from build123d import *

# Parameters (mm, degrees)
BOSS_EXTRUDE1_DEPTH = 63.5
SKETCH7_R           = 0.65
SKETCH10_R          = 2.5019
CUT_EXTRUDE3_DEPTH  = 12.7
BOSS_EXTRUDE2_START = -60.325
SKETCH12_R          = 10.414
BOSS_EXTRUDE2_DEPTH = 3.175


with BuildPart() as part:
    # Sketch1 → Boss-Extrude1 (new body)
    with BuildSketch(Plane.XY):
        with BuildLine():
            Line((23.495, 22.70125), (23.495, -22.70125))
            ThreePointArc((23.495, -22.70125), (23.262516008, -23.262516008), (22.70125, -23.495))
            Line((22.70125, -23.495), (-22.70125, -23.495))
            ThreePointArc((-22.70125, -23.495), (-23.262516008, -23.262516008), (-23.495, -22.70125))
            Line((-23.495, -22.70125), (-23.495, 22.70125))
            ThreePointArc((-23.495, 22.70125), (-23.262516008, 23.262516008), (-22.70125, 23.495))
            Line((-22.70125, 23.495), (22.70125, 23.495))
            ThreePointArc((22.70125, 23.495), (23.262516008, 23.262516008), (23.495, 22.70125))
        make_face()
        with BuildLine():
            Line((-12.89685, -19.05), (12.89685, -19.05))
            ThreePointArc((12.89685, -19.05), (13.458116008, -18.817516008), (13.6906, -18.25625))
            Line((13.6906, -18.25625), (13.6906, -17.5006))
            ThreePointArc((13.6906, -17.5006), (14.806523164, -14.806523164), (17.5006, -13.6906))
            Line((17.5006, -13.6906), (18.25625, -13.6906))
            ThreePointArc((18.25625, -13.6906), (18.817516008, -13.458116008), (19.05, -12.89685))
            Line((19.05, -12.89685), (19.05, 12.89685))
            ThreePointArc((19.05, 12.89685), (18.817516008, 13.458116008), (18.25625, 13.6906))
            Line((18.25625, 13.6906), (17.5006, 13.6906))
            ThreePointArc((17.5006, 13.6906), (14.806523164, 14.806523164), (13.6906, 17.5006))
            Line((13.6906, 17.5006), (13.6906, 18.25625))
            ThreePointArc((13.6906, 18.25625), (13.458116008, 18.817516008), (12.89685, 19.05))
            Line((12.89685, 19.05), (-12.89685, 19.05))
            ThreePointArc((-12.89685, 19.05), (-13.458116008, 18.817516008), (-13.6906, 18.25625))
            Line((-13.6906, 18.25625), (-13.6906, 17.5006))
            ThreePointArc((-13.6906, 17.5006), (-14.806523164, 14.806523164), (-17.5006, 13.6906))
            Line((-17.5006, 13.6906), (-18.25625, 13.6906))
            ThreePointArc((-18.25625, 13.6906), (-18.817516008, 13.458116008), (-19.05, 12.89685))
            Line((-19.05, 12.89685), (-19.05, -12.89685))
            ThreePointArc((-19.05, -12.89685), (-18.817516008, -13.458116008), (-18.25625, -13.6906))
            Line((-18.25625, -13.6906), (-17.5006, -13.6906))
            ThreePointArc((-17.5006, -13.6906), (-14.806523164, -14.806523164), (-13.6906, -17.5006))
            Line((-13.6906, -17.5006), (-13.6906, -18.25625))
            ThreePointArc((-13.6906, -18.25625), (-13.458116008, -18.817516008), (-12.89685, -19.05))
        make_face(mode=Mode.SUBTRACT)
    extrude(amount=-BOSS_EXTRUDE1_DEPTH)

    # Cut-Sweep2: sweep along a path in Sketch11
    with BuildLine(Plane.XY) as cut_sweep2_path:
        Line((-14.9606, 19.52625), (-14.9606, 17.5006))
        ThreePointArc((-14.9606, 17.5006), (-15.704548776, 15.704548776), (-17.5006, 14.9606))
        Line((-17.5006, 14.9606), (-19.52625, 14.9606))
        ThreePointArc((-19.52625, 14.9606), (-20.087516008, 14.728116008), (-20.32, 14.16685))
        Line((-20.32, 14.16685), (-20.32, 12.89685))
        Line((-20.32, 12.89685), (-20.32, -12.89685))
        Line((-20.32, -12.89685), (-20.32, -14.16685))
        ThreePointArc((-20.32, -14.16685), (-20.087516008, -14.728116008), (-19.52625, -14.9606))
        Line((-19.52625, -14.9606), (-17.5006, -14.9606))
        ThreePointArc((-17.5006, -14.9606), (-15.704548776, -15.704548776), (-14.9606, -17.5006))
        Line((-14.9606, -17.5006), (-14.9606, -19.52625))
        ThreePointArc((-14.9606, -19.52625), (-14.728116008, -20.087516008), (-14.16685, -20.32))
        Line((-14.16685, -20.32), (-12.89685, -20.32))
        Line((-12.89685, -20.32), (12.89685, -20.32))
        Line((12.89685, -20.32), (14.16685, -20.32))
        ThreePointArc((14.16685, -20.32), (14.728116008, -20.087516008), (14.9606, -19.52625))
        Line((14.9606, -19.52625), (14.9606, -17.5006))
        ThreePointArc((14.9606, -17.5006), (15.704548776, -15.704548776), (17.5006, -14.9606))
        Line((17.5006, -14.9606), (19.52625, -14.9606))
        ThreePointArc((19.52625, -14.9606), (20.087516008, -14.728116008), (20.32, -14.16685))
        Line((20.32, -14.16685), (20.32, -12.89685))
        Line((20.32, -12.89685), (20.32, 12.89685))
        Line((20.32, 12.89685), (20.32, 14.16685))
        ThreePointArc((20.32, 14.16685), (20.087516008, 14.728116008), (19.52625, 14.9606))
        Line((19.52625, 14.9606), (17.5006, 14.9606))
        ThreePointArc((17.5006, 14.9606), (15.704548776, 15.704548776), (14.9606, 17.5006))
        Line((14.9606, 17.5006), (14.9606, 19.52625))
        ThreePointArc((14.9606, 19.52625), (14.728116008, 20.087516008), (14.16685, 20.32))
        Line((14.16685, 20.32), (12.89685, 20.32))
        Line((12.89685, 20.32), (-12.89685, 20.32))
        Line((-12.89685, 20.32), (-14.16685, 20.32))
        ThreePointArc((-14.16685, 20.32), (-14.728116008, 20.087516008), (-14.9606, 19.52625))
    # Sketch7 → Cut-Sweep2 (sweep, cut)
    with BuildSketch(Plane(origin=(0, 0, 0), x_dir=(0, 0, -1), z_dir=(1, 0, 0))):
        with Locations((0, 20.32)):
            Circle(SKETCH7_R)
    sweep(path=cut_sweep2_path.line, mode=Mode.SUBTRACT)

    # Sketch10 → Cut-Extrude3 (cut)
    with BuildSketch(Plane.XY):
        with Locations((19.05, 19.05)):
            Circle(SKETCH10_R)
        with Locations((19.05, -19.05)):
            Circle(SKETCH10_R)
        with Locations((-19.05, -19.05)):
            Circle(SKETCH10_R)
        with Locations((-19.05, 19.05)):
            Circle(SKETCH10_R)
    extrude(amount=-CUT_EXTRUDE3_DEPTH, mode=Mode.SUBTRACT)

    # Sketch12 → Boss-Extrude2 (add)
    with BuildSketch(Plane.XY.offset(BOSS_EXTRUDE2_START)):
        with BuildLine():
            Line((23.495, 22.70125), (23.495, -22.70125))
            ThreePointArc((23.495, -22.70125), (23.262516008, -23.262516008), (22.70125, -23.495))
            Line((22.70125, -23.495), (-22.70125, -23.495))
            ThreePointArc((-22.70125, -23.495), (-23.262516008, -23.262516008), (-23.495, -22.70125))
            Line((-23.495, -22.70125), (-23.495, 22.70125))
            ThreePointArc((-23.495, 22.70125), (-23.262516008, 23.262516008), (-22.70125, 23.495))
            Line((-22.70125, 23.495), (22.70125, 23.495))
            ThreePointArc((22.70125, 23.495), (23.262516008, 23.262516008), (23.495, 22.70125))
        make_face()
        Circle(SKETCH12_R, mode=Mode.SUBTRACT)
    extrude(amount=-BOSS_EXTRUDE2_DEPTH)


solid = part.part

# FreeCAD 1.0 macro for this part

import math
import FreeCAD as App
import Part
import Sketcher
Q = App.Units.Quantity

doc = App.newDocument("Part")
params = doc.addObject("Spreadsheet::Sheet", "Params")
for row, (alias, value) in enumerate([
    ("sketch1_radius", "0.15 in"),
    ("sketch1_radius2", "0.03125 in"),
    ("pad1_length", "2.5 in"),
    ("sketch3_radius", "0.1 in"),
    ("sketch3_radius2", "0.03125 in"),
    ("sketch4_diameter", "0.197 in"),
    ("pocket1_length", "0.5 in"),
    ("sketch5_diameter", "0.82 in"),
    ("sketch5_radius", "0.03125 in"),
    ("pad2_length", "0.125 in"),
], start=1):
    params.set(f"A{row}", alias)
    params.set(f"B{row}", "=" + value)
    params.setAlias(f"B{row}", alias)

body = doc.addObject("PartDesign::Body", "Body")

sketch1 = body.newObject("Sketcher::SketchObject", "Sketch")
sketch1.AttachmentSupport = (doc.getObject("XY_Plane"), [""])
sketch1.MapMode = "FlatFace"
sketch1.addGeometry([
    Part.LineSegment(App.Vector(23.5, -22.7, 0), App.Vector(23.5, 22.7, 0)),
    Part.ArcOfCircle(Part.Circle(App.Vector(22.7, 22.7, 0), App.Vector(0, 0, 1), 0.8), math.radians(0), math.radians(90)),
    Part.LineSegment(App.Vector(22.7, 23.5, 0), App.Vector(-22.7, 23.5, 0)),
    Part.ArcOfCircle(Part.Circle(App.Vector(-22.7, 22.7, 0), App.Vector(0, 0, 1), 0.8), math.radians(90), math.radians(180)),
    Part.LineSegment(App.Vector(-23.5, 22.7, 0), App.Vector(-23.5, -22.7, 0)),
    Part.ArcOfCircle(Part.Circle(App.Vector(-22.7, -22.7, 0), App.Vector(0, 0, 1), 0.8), math.radians(180), math.radians(270)),
    Part.LineSegment(App.Vector(-22.7, -23.5, 0), App.Vector(22.7, -23.5, 0)),
    Part.ArcOfCircle(Part.Circle(App.Vector(22.7, -22.7, 0), App.Vector(0, 0, 1), 0.8), math.radians(-90), math.radians(0)),
    Part.ArcOfCircle(Part.Circle(App.Vector(-12.9, -18.3, 0), App.Vector(0, 0, 1), 0.8), math.radians(180), math.radians(270)),
    Part.LineSegment(App.Vector(-13.7, -18.3, 0), App.Vector(-13.7, -17.5, 0)),
    Part.ArcOfCircle(Part.Circle(App.Vector(-17.5, -17.5, 0), App.Vector(0, 0, 1), 3.8), math.radians(0), math.radians(90)),
    Part.LineSegment(App.Vector(-17.5, -13.7, 0), App.Vector(-18.3, -13.7, 0)),
    Part.ArcOfCircle(Part.Circle(App.Vector(-18.3, -12.9, 0), App.Vector(0, 0, 1), 0.8), math.radians(180), math.radians(270)),
    Part.LineSegment(App.Vector(-19.1, -12.9, 0), App.Vector(-19.1, 12.9, 0)),
    Part.ArcOfCircle(Part.Circle(App.Vector(-18.3, 12.9, 0), App.Vector(0, 0, 1), 0.8), math.radians(90), math.radians(180)),
    Part.LineSegment(App.Vector(-18.3, 13.7, 0), App.Vector(-17.5, 13.7, 0)),
    Part.ArcOfCircle(Part.Circle(App.Vector(-17.5, 17.5, 0), App.Vector(0, 0, 1), 3.8), math.radians(-90), math.radians(0)),
    Part.LineSegment(App.Vector(-13.7, 17.5, 0), App.Vector(-13.7, 18.3, 0)),
    Part.ArcOfCircle(Part.Circle(App.Vector(-12.9, 18.3, 0), App.Vector(0, 0, 1), 0.8), math.radians(90), math.radians(180)),
    Part.LineSegment(App.Vector(-12.9, 19.1, 0), App.Vector(12.9, 19.1, 0)),
    Part.ArcOfCircle(Part.Circle(App.Vector(12.9, 18.3, 0), App.Vector(0, 0, 1), 0.8), math.radians(0), math.radians(90)),
    Part.LineSegment(App.Vector(13.7, 18.3, 0), App.Vector(13.7, 17.5, 0)),
    Part.ArcOfCircle(Part.Circle(App.Vector(17.5, 17.5, 0), App.Vector(0, 0, 1), 3.8), math.radians(-180), math.radians(-90)),
    Part.LineSegment(App.Vector(17.5, 13.7, 0), App.Vector(18.3, 13.7, 0)),
    Part.ArcOfCircle(Part.Circle(App.Vector(18.3, 12.9, 0), App.Vector(0, 0, 1), 0.8), math.radians(0), math.radians(90)),
    Part.LineSegment(App.Vector(19.1, 12.9, 0), App.Vector(19.1, -12.9, 0)),
    Part.ArcOfCircle(Part.Circle(App.Vector(18.3, -12.9, 0), App.Vector(0, 0, 1), 0.8), math.radians(-90), math.radians(0)),
    Part.LineSegment(App.Vector(18.3, -13.7, 0), App.Vector(17.5, -13.7, 0)),
    Part.ArcOfCircle(Part.Circle(App.Vector(17.5, -17.5, 0), App.Vector(0, 0, 1), 3.8), math.radians(90), math.radians(180)),
    Part.LineSegment(App.Vector(13.7, -17.5, 0), App.Vector(13.7, -18.3, 0)),
    Part.ArcOfCircle(Part.Circle(App.Vector(12.9, -18.3, 0), App.Vector(0, 0, 1), 0.8), math.radians(-90), math.radians(0)),
    Part.LineSegment(App.Vector(12.9, -19.1, 0), App.Vector(-12.9, -19.1, 0)),
], False)
sketch1.addConstraint([
    Sketcher.Constraint("Tangent", 0, 2, 1, 1),
    Sketcher.Constraint("Tangent", 1, 2, 2, 1),
    Sketcher.Constraint("Tangent", 2, 2, 3, 1),
    Sketcher.Constraint("Tangent", 3, 2, 4, 1),
    Sketcher.Constraint("Tangent", 4, 2, 5, 1),
    Sketcher.Constraint("Tangent", 5, 2, 6, 1),
    Sketcher.Constraint("Tangent", 6, 2, 7, 1),
    Sketcher.Constraint("Tangent", 7, 2, 0, 1),
    Sketcher.Constraint("Tangent", 8, 1, 9, 1),
    Sketcher.Constraint("Tangent", 9, 2, 10, 1),
    Sketcher.Constraint("Tangent", 10, 2, 11, 1),
    Sketcher.Constraint("Tangent", 11, 2, 12, 2),
    Sketcher.Constraint("Tangent", 12, 1, 13, 1),
    Sketcher.Constraint("Tangent", 13, 2, 14, 2),
    Sketcher.Constraint("Tangent", 14, 1, 15, 1),
    Sketcher.Constraint("Tangent", 15, 2, 16, 1),
    Sketcher.Constraint("Tangent", 16, 2, 17, 1),
    Sketcher.Constraint("Tangent", 17, 2, 18, 2),
    Sketcher.Constraint("Tangent", 18, 1, 19, 1),
    Sketcher.Constraint("Tangent", 19, 2, 20, 2),
    Sketcher.Constraint("Tangent", 20, 1, 21, 1),
    Sketcher.Constraint("Tangent", 21, 2, 22, 1),
    Sketcher.Constraint("Tangent", 22, 2, 23, 1),
    Sketcher.Constraint("Tangent", 23, 2, 24, 2),
    Sketcher.Constraint("Tangent", 24, 1, 25, 1),
    Sketcher.Constraint("Tangent", 25, 2, 26, 2),
    Sketcher.Constraint("Tangent", 26, 1, 27, 1),
    Sketcher.Constraint("Tangent", 27, 2, 28, 1),
    Sketcher.Constraint("Tangent", 28, 2, 29, 1),
    Sketcher.Constraint("Tangent", 29, 2, 30, 2),
    Sketcher.Constraint("Tangent", 30, 1, 31, 1),
    Sketcher.Constraint("Tangent", 31, 2, 8, 2),
    Sketcher.Constraint("Vertical", 0),
    Sketcher.Constraint("Horizontal", 2),
    Sketcher.Constraint("Vertical", 4),
    Sketcher.Constraint("Horizontal", 6),
    Sketcher.Constraint("Vertical", 9),
    Sketcher.Constraint("Horizontal", 11),
    Sketcher.Constraint("Vertical", 13),
    Sketcher.Constraint("Horizontal", 15),
    Sketcher.Constraint("Vertical", 17),
    Sketcher.Constraint("Horizontal", 19),
    Sketcher.Constraint("Vertical", 21),
    Sketcher.Constraint("Horizontal", 23),
    Sketcher.Constraint("Vertical", 25),
    Sketcher.Constraint("Horizontal", 27),
    Sketcher.Constraint("Vertical", 29),
    Sketcher.Constraint("Horizontal", 31),
    Sketcher.Constraint("Equal", 1, 3),
    Sketcher.Constraint("Equal", 3, 5),
    Sketcher.Constraint("Equal", 5, 7),
    Sketcher.Constraint("Equal", 7, 8),
    Sketcher.Constraint("Equal", 8, 12),
    Sketcher.Constraint("Equal", 12, 14),
    Sketcher.Constraint("Equal", 10, 16),
    Sketcher.Constraint("Equal", 14, 18),
    Sketcher.Constraint("Equal", 18, 20),
    Sketcher.Constraint("Equal", 16, 22),
    Sketcher.Constraint("Equal", 20, 24),
    Sketcher.Constraint("Equal", 24, 26),
    Sketcher.Constraint("Equal", 22, 28),
    Sketcher.Constraint("Equal", 26, 30),
    Sketcher.Constraint("Symmetric", 1, 3, 5, 3, -1, 1),
    Sketcher.Constraint("Symmetric", 8, 3, 20, 3, -1, 1),
    Sketcher.Constraint("Symmetric", 12, 3, 24, 3, -1, 1),
    Sketcher.Constraint("Symmetric", 16, 3, 28, 3, -1, 1),
    Sketcher.Constraint("Symmetric", 16, 3, 22, 3, -2),
    Sketcher.Constraint("Equal", 6, 0),
    Sketcher.Constraint("Equal", 27, 9),
    Sketcher.Constraint("Equal", 31, 13),
    Sketcher.Constraint("Radius", 10, Q("0.15 in")),
    Sketcher.Constraint("Radius", 1, Q("0.03125 in")),
    Sketcher.Constraint("DistanceX", 12, 1, -1, 1, Q("0.75 in")),
    Sketcher.Constraint("DistanceX", 2, 2, 2, 1, Q("1.7875 in")),
    Sketcher.Constraint("DistanceX", 19, 1, 19, 2, Q("1.0155 in")),
])
sketch1.setExpression("Constraints[70]", "Params.sketch1_radius")
sketch1.setExpression("Constraints[71]", "Params.sketch1_radius2")
pad1 = body.newObject("PartDesign::Pad", "Pad")
pad1.Profile = sketch1
pad1.setExpression("Length", "Params.pad1_length")
pad1.Reversed = True

sketch2 = body.newObject("Sketcher::SketchObject", "Sketch001")
sketch2.AttachmentSupport = (doc.getObject("YZ_Plane"), [""])
sketch2.MapMode = "FlatFace"
sketch2.addGeometry(Part.Circle(App.Vector(20.3, 0, 0), App.Vector(0, 0, 1), 0.7), False)
sketch2.addConstraint([
    Sketcher.Constraint("PointOnObject", 0, 3, -1),
    Sketcher.Constraint("DistanceX", -1, 1, 0, 3, Q("0.8 in")),
    Sketcher.Constraint("Diameter", 0, 1.3),
])

sketch3 = body.newObject("Sketcher::SketchObject", "Sketch002")
sketch3.AttachmentSupport = (doc.getObject("XY_Plane"), [""])
sketch3.MapMode = "FlatFace"
sketch3.addGeometry([
    Part.LineSegment(App.Vector(-15, 19.5, 0), App.Vector(-15, 17.5, 0)),
    Part.ArcOfCircle(Part.Circle(App.Vector(-17.5, 17.5, 0), App.Vector(0, 0, 1), 2.5), math.radians(-90), math.radians(0)),
    Part.LineSegment(App.Vector(-17.5, 15, 0), App.Vector(-19.5, 15, 0)),
    Part.ArcOfCircle(Part.Circle(App.Vector(-19.5, 14.2, 0), App.Vector(0, 0, 1), 0.8), math.radians(90), math.radians(180)),
    Part.LineSegment(App.Vector(-20.3, 14.2, 0), App.Vector(-20.3, -14.2, 0)),
    Part.ArcOfCircle(Part.Circle(App.Vector(-19.5, -14.2, 0), App.Vector(0, 0, 1), 0.8), math.radians(180), math.radians(270)),
    Part.LineSegment(App.Vector(-19.5, -15, 0), App.Vector(-17.5, -15, 0)),
    Part.ArcOfCircle(Part.Circle(App.Vector(-17.5, -17.5, 0), App.Vector(0, 0, 1), 2.5), math.radians(0), math.radians(90)),
    Part.LineSegment(App.Vector(-15, -17.5, 0), App.Vector(-15, -19.5, 0)),
    Part.ArcOfCircle(Part.Circle(App.Vector(-14.2, -19.5, 0), App.Vector(0, 0, 1), 0.8), math.radians(180), math.radians(270)),
    Part.LineSegment(App.Vector(-14.2, -20.3, 0), App.Vector(14.2, -20.3, 0)),
    Part.ArcOfCircle(Part.Circle(App.Vector(14.2, -19.5, 0), App.Vector(0, 0, 1), 0.8), math.radians(-90), math.radians(0)),
    Part.LineSegment(App.Vector(15, -19.5, 0), App.Vector(15, -17.5, 0)),
    Part.ArcOfCircle(Part.Circle(App.Vector(17.5, -17.5, 0), App.Vector(0, 0, 1), 2.5), math.radians(90), math.radians(180)),
    Part.LineSegment(App.Vector(17.5, -15, 0), App.Vector(19.5, -15, 0)),
    Part.ArcOfCircle(Part.Circle(App.Vector(19.5, -14.2, 0), App.Vector(0, 0, 1), 0.8), math.radians(-90), math.radians(0)),
    Part.LineSegment(App.Vector(20.3, -14.2, 0), App.Vector(20.3, 14.2, 0)),
    Part.ArcOfCircle(Part.Circle(App.Vector(19.5, 14.2, 0), App.Vector(0, 0, 1), 0.8), math.radians(0), math.radians(90)),
    Part.LineSegment(App.Vector(19.5, 15, 0), App.Vector(17.5, 15, 0)),
    Part.ArcOfCircle(Part.Circle(App.Vector(17.5, 17.5, 0), App.Vector(0, 0, 1), 2.5), math.radians(-180), math.radians(-90)),
    Part.LineSegment(App.Vector(15, 17.5, 0), App.Vector(15, 19.5, 0)),
    Part.ArcOfCircle(Part.Circle(App.Vector(14.2, 19.5, 0), App.Vector(0, 0, 1), 0.8), math.radians(0), math.radians(90)),
    Part.LineSegment(App.Vector(14.2, 20.3, 0), App.Vector(-14.2, 20.3, 0)),
    Part.ArcOfCircle(Part.Circle(App.Vector(-14.2, 19.5, 0), App.Vector(0, 0, 1), 0.8), math.radians(90), math.radians(180)),
], False)
sketch3.addConstraint([
    Sketcher.Constraint("Tangent", 0, 2, 1, 2),
    Sketcher.Constraint("Tangent", 1, 1, 2, 1),
    Sketcher.Constraint("Tangent", 2, 2, 3, 1),
    Sketcher.Constraint("Tangent", 3, 2, 4, 1),
    Sketcher.Constraint("Tangent", 4, 2, 5, 1),
    Sketcher.Constraint("Tangent", 5, 2, 6, 1),
    Sketcher.Constraint("Tangent", 6, 2, 7, 2),
    Sketcher.Constraint("Tangent", 7, 1, 8, 1),
    Sketcher.Constraint("Tangent", 8, 2, 9, 1),
    Sketcher.Constraint("Tangent", 9, 2, 10, 1),
    Sketcher.Constraint("Tangent", 10, 2, 11, 1),
    Sketcher.Constraint("Tangent", 11, 2, 12, 1),
    Sketcher.Constraint("Tangent", 12, 2, 13, 2),
    Sketcher.Constraint("Tangent", 13, 1, 14, 1),
    Sketcher.Constraint("Tangent", 14, 2, 15, 1),
    Sketcher.Constraint("Tangent", 15, 2, 16, 1),
    Sketcher.Constraint("Tangent", 16, 2, 17, 1),
    Sketcher.Constraint("Tangent", 17, 2, 18, 1),
    Sketcher.Constraint("Tangent", 18, 2, 19, 2),
    Sketcher.Constraint("Tangent", 19, 1, 20, 1),
    Sketcher.Constraint("Tangent", 20, 2, 21, 1),
    Sketcher.Constraint("Tangent", 21, 2, 22, 1),
    Sketcher.Constraint("Tangent", 22, 2, 23, 1),
    Sketcher.Constraint("Tangent", 23, 2, 0, 1),
    Sketcher.Constraint("Vertical", 0),
    Sketcher.Constraint("Horizontal", 2),
    Sketcher.Constraint("Vertical", 4),
    Sketcher.Constraint("Horizontal", 6),
    Sketcher.Constraint("Vertical", 8),
    Sketcher.Constraint("Horizontal", 10),
    Sketcher.Constraint("Vertical", 12),
    Sketcher.Constraint("Horizontal", 14),
    Sketcher.Constraint("Vertical", 16),
    Sketcher.Constraint("Horizontal", 18),
    Sketcher.Constraint("Vertical", 20),
    Sketcher.Constraint("Horizontal", 22),
    Sketcher.Constraint("Equal", 3, 5),
    Sketcher.Constraint("Equal", 1, 7),
    Sketcher.Constraint("Equal", 5, 9),
    Sketcher.Constraint("Equal", 9, 11),
    Sketcher.Constraint("Equal", 7, 13),
    Sketcher.Constraint("Equal", 11, 15),
    Sketcher.Constraint("Equal", 15, 17),
    Sketcher.Constraint("Equal", 13, 19),
    Sketcher.Constraint("Equal", 17, 21),
    Sketcher.Constraint("Equal", 21, 23),
    Sketcher.Constraint("Symmetric", 1, 3, 13, 3, -1, 1),
    Sketcher.Constraint("Symmetric", 5, 3, 17, 3, -1, 1),
    Sketcher.Constraint("Symmetric", 9, 3, 21, 3, -1, 1),
    Sketcher.Constraint("Symmetric", 7, 3, 13, 3, -2),
    Sketcher.Constraint("Equal", 18, 0),
    Sketcher.Constraint("Equal", 22, 4),
    Sketcher.Constraint("Radius", 1, Q("0.1 in")),
    Sketcher.Constraint("Radius", 3, Q("0.03125 in")),
    Sketcher.Constraint("DistanceX", 3, 2, -1, 1, Q("0.8 in")),
    Sketcher.Constraint("DistanceX", 10, 1, 10, 2, Q("1.1155 in")),
])
sketch3.setExpression("Constraints[52]", "Params.sketch3_radius")
sketch3.setExpression("Constraints[53]", "Params.sketch3_radius2")
doc.recompute()

subtractivepipe = body.newObject("PartDesign::SubtractivePipe", "SubtractivePipe")
subtractivepipe.Profile = sketch2
subtractivepipe.Spine = (sketch3, ["Edge1", "Edge2", "Edge3", "Edge4", "Edge5", "Edge6", "Edge7", "Edge8", "Edge9", "Edge10", "Edge11", "Edge12", "Edge13", "Edge14", "Edge15", "Edge16", "Edge17", "Edge18", "Edge19", "Edge20", "Edge21", "Edge22", "Edge23", "Edge24"])

sketch4 = body.newObject("Sketcher::SketchObject", "Sketch003")
sketch4.AttachmentSupport = (doc.getObject("XY_Plane"), [""])
sketch4.MapMode = "FlatFace"
sketch4.addGeometry([
    Part.Circle(App.Vector(19.1, 19.1, 0), App.Vector(0, 0, 1), 2.5),
    Part.Circle(App.Vector(19.1, -19.1, 0), App.Vector(0, 0, 1), 2.5),
    Part.Circle(App.Vector(-19.1, -19.1, 0), App.Vector(0, 0, 1), 2.5),
    Part.Circle(App.Vector(-19.1, 19.1, 0), App.Vector(0, 0, 1), 2.5),
], False)
sketch4.addConstraint([
    Sketcher.Constraint("Equal", 0, 1),
    Sketcher.Constraint("Equal", 1, 2),
    Sketcher.Constraint("Equal", 2, 3),
    Sketcher.Constraint("Symmetric", 0, 3, 2, 3, -1, 1),
    Sketcher.Constraint("Symmetric", 1, 3, 3, 3, -1, 1),
    Sketcher.Constraint("Symmetric", 1, 3, 2, 3, -2),
    Sketcher.Constraint("Diameter", 0, Q("0.197 in")),
    Sketcher.Constraint("DistanceY", 1, 3, 0, 3, Q("1.5 in")),
    Sketcher.Constraint("DistanceX", 2, 3, 1, 3, Q("1.5 in")),
])
sketch4.setExpression("Constraints[6]", "Params.sketch4_diameter")
pocket1 = body.newObject("PartDesign::Pocket", "Pocket")
pocket1.Profile = sketch4
pocket1.setExpression("Length", "Params.pocket1_length")

sketch5 = body.newObject("Sketcher::SketchObject", "Sketch004")
sketch5.AttachmentSupport = (doc.getObject("XY_Plane"), [""])
sketch5.MapMode = "FlatFace"
sketch5.AttachmentOffset = App.Placement(App.Vector(0, 0, -2.375 * 25.4), App.Rotation())
sketch5.addGeometry([
    Part.LineSegment(App.Vector(23.5, -22.7, 0), App.Vector(23.5, 22.7, 0)),
    Part.ArcOfCircle(Part.Circle(App.Vector(22.7, 22.7, 0), App.Vector(0, 0, 1), 0.8), math.radians(0), math.radians(90)),
    Part.LineSegment(App.Vector(22.7, 23.5, 0), App.Vector(-22.7, 23.5, 0)),
    Part.ArcOfCircle(Part.Circle(App.Vector(-22.7, 22.7, 0), App.Vector(0, 0, 1), 0.8), math.radians(90), math.radians(180)),
    Part.LineSegment(App.Vector(-23.5, 22.7, 0), App.Vector(-23.5, -22.7, 0)),
    Part.ArcOfCircle(Part.Circle(App.Vector(-22.7, -22.7, 0), App.Vector(0, 0, 1), 0.8), math.radians(180), math.radians(270)),
    Part.LineSegment(App.Vector(-22.7, -23.5, 0), App.Vector(22.7, -23.5, 0)),
    Part.ArcOfCircle(Part.Circle(App.Vector(22.7, -22.7, 0), App.Vector(0, 0, 1), 0.8), math.radians(-90), math.radians(0)),
    Part.Circle(App.Vector(0, 0, 0), App.Vector(0, 0, 1), 10.4),
], False)
sketch5.addConstraint([
    Sketcher.Constraint("Tangent", 0, 2, 1, 1),
    Sketcher.Constraint("Tangent", 1, 2, 2, 1),
    Sketcher.Constraint("Tangent", 2, 2, 3, 1),
    Sketcher.Constraint("Tangent", 3, 2, 4, 1),
    Sketcher.Constraint("Tangent", 4, 2, 5, 1),
    Sketcher.Constraint("Tangent", 5, 2, 6, 1),
    Sketcher.Constraint("Tangent", 6, 2, 7, 1),
    Sketcher.Constraint("Tangent", 7, 2, 0, 1),
    Sketcher.Constraint("Vertical", 0),
    Sketcher.Constraint("Horizontal", 2),
    Sketcher.Constraint("Vertical", 4),
    Sketcher.Constraint("Horizontal", 6),
    Sketcher.Constraint("Coincident", 8, 3, -1, 1),
    Sketcher.Constraint("Equal", 1, 3),
    Sketcher.Constraint("Equal", 3, 5),
    Sketcher.Constraint("Equal", 5, 7),
    Sketcher.Constraint("Symmetric", 1, 3, 5, 3, -1, 1),
    Sketcher.Constraint("Equal", 6, 0),
    Sketcher.Constraint("Diameter", 8, Q("0.82 in")),
    Sketcher.Constraint("Radius", 1, Q("0.03125 in")),
    Sketcher.Constraint("DistanceX", 2, 2, 2, 1, Q("1.7875 in")),
])
sketch5.setExpression("Constraints[18]", "Params.sketch5_diameter")
sketch5.setExpression("Constraints[19]", "Params.sketch5_radius")
pad2 = body.newObject("PartDesign::Pad", "Pad001")
pad2.Profile = sketch5
pad2.setExpression("Length", "Params.pad2_length")
pad2.Reversed = True

doc.recompute()
